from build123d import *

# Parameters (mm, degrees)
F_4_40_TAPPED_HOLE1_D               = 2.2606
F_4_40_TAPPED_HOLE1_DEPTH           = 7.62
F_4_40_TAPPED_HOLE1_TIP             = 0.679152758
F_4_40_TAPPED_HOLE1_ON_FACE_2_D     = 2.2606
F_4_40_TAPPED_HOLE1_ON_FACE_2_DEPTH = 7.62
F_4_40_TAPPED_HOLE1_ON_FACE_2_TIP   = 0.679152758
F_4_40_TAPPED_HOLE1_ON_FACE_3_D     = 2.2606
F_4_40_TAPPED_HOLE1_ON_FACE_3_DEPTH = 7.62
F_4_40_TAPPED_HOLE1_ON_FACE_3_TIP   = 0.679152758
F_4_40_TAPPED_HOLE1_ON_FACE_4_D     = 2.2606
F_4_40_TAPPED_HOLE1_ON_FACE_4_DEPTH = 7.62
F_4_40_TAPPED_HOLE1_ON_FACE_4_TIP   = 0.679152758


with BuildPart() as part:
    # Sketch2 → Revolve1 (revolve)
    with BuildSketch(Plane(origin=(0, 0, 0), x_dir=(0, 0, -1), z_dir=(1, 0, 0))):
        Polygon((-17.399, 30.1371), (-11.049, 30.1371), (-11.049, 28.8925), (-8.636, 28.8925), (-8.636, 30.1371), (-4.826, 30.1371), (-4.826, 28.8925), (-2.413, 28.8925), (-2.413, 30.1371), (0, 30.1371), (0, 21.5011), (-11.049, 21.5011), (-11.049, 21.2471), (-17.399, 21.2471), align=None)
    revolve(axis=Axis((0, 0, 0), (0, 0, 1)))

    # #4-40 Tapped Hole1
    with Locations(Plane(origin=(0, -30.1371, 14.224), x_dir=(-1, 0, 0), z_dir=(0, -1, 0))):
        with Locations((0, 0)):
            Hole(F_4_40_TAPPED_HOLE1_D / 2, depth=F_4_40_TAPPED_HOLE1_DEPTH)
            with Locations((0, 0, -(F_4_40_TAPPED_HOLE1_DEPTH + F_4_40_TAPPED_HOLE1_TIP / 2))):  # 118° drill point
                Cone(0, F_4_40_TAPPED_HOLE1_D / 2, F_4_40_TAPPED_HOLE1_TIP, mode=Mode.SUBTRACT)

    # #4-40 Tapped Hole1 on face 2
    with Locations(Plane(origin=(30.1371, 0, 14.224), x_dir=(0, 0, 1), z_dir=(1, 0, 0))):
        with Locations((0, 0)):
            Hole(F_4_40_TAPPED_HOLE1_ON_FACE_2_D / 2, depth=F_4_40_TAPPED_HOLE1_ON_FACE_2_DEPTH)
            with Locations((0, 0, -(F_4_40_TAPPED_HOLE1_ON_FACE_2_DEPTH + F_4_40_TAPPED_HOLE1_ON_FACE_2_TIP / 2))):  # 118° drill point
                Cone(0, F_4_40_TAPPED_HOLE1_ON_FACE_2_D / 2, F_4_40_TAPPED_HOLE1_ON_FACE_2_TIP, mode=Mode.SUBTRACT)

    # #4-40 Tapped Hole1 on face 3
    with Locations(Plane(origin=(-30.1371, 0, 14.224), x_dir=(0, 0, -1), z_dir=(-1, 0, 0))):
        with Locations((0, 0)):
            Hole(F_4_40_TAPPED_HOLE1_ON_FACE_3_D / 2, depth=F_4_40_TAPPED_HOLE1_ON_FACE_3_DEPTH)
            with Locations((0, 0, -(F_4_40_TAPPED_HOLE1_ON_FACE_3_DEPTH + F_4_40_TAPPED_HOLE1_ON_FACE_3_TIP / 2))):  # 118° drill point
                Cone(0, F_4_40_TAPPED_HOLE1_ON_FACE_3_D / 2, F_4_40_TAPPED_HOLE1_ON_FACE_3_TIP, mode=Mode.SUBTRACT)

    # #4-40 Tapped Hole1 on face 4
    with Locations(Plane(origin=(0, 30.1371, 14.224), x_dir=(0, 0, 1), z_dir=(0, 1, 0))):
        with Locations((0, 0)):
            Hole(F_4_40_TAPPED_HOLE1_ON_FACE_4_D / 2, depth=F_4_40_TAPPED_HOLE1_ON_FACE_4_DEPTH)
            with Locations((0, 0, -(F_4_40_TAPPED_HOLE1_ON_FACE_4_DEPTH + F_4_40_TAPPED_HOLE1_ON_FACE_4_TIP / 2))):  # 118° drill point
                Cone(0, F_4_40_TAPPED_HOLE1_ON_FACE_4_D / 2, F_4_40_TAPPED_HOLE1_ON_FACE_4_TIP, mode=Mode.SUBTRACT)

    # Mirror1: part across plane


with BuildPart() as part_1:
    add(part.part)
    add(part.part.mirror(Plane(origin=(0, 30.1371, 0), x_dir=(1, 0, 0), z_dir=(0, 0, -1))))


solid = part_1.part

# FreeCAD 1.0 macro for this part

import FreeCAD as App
import Part
import Sketcher
Q = App.Units.Quantity


def add_polygon(sketch, points):
    """Adds a closed chain of lines whose ends are joined by coincident constraints."""
    first, n = sketch.GeometryCount, len(points)
    for a, b in zip(points, points[1:] + points[:1]):
        sketch.addGeometry(Part.LineSegment(App.Vector(*a, 0), App.Vector(*b, 0)), False)
    for i in range(n):
        sketch.addConstraint(Sketcher.Constraint("Coincident", first + i, 2, first + (i + 1) % n, 1))

doc = App.newDocument("Part")
body = doc.addObject("PartDesign::Body", "Body")

sketch1 = body.newObject("Sketcher::SketchObject", "Sketch")
sketch1.AttachmentSupport = (doc.getObject("YZ_Plane"), [""])
sketch1.MapMode = "FlatFace"
add_polygon(sketch1, [(30.1371, 11.049), (30.1371, 17.399), (21.2471, 17.399), (21.2471, 11.049), (21.5011, 11.049), (21.5011, 0), (30.1371, 0), (30.1371, 2.413), (28.8925, 2.413), (28.8925, 4.826), (30.1371, 4.826), (30.1371, 8.636), (28.8925, 8.636), (28.8925, 11.049)])
sketch1.addConstraint([
    Sketcher.Constraint("Vertical", 0),
    Sketcher.Constraint("Horizontal", 1),
    Sketcher.Constraint("Vertical", 2),
    Sketcher.Constraint("Horizontal", 3),
    Sketcher.Constraint("Vertical", 4),
    Sketcher.Constraint("Horizontal", 5),
    Sketcher.Constraint("Vertical", 6),
    Sketcher.Constraint("Horizontal", 7),
    Sketcher.Constraint("Vertical", 8),
    Sketcher.Constraint("Horizontal", 9),
    Sketcher.Constraint("Vertical", 10),
    Sketcher.Constraint("Horizontal", 11),
    Sketcher.Constraint("Vertical", 12),
    Sketcher.Constraint("Horizontal", 13),
    Sketcher.Constraint("PointOnObject", 4, 2, -1),
    Sketcher.Constraint("Horizontal", 3, 2, 12, 2),
    Sketcher.Constraint("Vertical", 0, 2, 5, 2),
    Sketcher.Constraint("Vertical", 6, 2, 9, 2),
    Sketcher.Constraint("Vertical", 8, 2, 11, 2),
    Sketcher.Constraint("Equal", 6, 8),
    Sketcher.Constraint("Equal", 8, 12),
    Sketcher.Constraint("DistanceX", 1, 2, 1, 1, Q("0.35 in")),
    Sketcher.Constraint("DistanceX", 3, 1, 3, 2, Q("0.01 in")),
    Sketcher.Constraint("DistanceY", 0, 1, 0, 2, Q("0.25 in")),
    Sketcher.Constraint("DistanceY", 10, 1, 10, 2, Q("0.15 in")),
    Sketcher.Constraint("DistanceX", 7, 2, 7, 1, Q("0.049 in")),
    Sketcher.Constraint("DistanceY", 4, 2, 4, 1, Q("0.435 in")),
    Sketcher.Constraint("DistanceX", -1, 1, 0, 2, Q("1.1865 in")),
])
revolution = body.newObject("PartDesign::Revolution", "Revolution")
revolution.Profile = sketch1
revolution.ReferenceAxis = (sketch1, ["V_Axis"])
revolution.Angle = 360

sketch2 = body.newObject("Sketcher::SketchObject", "Sketch001")
sketch2.AttachmentSupport = (doc.getObject("XZ_Plane"), [""])
sketch2.MapMode = "FlatFace"
sketch2.AttachmentOffset = App.Placement(App.Vector(0, 0, 1.1865 * 25.4), App.Rotation())
sketch2.addGeometry(Part.Circle(App.Vector(0, 14.224, 0), App.Vector(0, 0, 1), 1.1303), False)
sketch2.addConstraint([
    Sketcher.Constraint("PointOnObject", 0, 3, -2),
    Sketcher.Constraint("Diameter", 0, Q("0.089 in")),
    Sketcher.Constraint("DistanceY", -1, 1, 0, 3, Q("0.56 in")),
])
doc.recompute()
hole = body.newObject("PartDesign::Hole", "Hole")
hole.Profile = sketch2
hole.ThreadType = "None"
hole.Diameter = Q("0.089 in")
hole.DepthType = "Dimension"
hole.Depth = Q("0.3 in")
hole.DrillPoint = "Angled"
hole.DrillPointAngle = 118

sketch3 = body.newObject("Sketcher::SketchObject", "Sketch002")
sketch3.AttachmentSupport = (doc.getObject("YZ_Plane"), [""])
sketch3.MapMode = "FlatFace"
sketch3.AttachmentOffset = App.Placement(App.Vector(0, 0, 1.1865 * 25.4), App.Rotation())
sketch3.addGeometry(Part.Circle(App.Vector(0, 14.224, 0), App.Vector(0, 0, 1), 1.1303), False)
sketch3.addConstraint([
    Sketcher.Constraint("PointOnObject", 0, 3, -2),
    Sketcher.Constraint("Diameter", 0, Q("0.089 in")),
    Sketcher.Constraint("DistanceY", -1, 1, 0, 3, Q("0.56 in")),
])
doc.recompute()
hole2 = body.newObject("PartDesign::Hole", "Hole001")
hole2.Profile = sketch3
hole2.ThreadType = "None"
hole2.Diameter = Q("0.089 in")
hole2.DepthType = "Dimension"
hole2.Depth = Q("0.3 in")
hole2.DrillPoint = "Angled"
hole2.DrillPointAngle = 118

sketch4 = body.newObject("Sketcher::SketchObject", "Sketch003")
sketch4.AttachmentSupport = (doc.getObject("YZ_Plane"), [""])
sketch4.MapMode = "FlatFace"
sketch4.AttachmentOffset = App.Placement(App.Vector(0, 0, -1.1865 * 25.4), App.Rotation())
sketch4.addGeometry(Part.Circle(App.Vector(0, 14.224, 0), App.Vector(0, 0, 1), 1.1303), False)
sketch4.addConstraint([
    Sketcher.Constraint("PointOnObject", 0, 3, -2),
    Sketcher.Constraint("Diameter", 0, Q("0.089 in")),
    Sketcher.Constraint("DistanceY", -1, 1, 0, 3, Q("0.56 in")),
])
doc.recompute()
hole3 = body.newObject("PartDesign::Hole", "Hole002")
hole3.Profile = sketch4
hole3.ThreadType = "None"
hole3.Diameter = Q("0.089 in")
hole3.DepthType = "Dimension"
hole3.Depth = Q("0.3 in")
hole3.DrillPoint = "Angled"
hole3.DrillPointAngle = 118
hole3.Reversed = True

sketch5 = body.newObject("Sketcher::SketchObject", "Sketch004")
sketch5.AttachmentSupport = (doc.getObject("XZ_Plane"), [""])
sketch5.MapMode = "FlatFace"
sketch5.AttachmentOffset = App.Placement(App.Vector(0, 0, -1.1865 * 25.4), App.Rotation())
sketch5.addGeometry(Part.Circle(App.Vector(0, 14.224, 0), App.Vector(0, 0, 1), 1.1303), False)
sketch5.addConstraint([
    Sketcher.Constraint("PointOnObject", 0, 3, -2),
    Sketcher.Constraint("Diameter", 0, Q("0.089 in")),
    Sketcher.Constraint("DistanceY", -1, 1, 0, 3, Q("0.56 in")),
])
doc.recompute()
hole4 = body.newObject("PartDesign::Hole", "Hole003")
hole4.Profile = sketch5
hole4.ThreadType = "None"
hole4.Diameter = Q("0.089 in")
hole4.DepthType = "Dimension"
hole4.Depth = Q("0.3 in")
hole4.DrillPoint = "Angled"
hole4.DrillPointAngle = 118
hole4.Reversed = True
body2 = doc.addObject("PartDesign::Body", "Body001")
doc.recompute()

body2.BaseFeature = body
doc.recompute()

mirroring = doc.addObject("Part::Mirroring", "Mirroring")
mirroring.Source = body
mirroring.Base = App.Vector(0, 30.1371, 0)
mirroring.Normal = App.Vector(0, 0, -1)
body3 = doc.addObject("PartDesign::Body", "Body002")
body3.BaseFeature = mirroring
boolean = body2.newObject("PartDesign::Boolean", "Boolean")
boolean.Type = "Fuse"
boolean.addObjects([body3])
doc.recompute()
mirroring.Visibility = False

doc.recompute()
